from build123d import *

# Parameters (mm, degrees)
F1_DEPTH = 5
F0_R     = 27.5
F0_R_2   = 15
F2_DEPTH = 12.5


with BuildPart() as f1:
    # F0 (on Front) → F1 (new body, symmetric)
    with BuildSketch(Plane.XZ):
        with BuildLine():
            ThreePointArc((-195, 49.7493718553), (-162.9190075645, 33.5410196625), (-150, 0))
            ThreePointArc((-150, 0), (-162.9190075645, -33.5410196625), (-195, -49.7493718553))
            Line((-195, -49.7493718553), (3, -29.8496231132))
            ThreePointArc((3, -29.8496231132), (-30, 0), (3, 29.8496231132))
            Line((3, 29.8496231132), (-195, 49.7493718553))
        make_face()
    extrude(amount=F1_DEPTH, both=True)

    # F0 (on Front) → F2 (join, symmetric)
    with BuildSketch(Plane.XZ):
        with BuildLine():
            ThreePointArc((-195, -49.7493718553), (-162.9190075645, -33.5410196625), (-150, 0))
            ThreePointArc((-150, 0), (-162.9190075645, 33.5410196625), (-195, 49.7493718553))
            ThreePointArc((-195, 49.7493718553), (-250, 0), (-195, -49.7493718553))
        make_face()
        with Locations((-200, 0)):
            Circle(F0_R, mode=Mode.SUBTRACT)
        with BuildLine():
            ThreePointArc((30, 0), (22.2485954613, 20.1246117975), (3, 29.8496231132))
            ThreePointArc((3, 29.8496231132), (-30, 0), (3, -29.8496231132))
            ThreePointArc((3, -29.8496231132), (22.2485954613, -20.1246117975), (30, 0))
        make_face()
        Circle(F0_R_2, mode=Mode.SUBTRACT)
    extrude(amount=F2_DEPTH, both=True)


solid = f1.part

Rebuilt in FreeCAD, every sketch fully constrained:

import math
import FreeCAD as App
import Part
import Sketcher

doc = App.newDocument("Part")
params = doc.addObject("Spreadsheet::Sheet", "Params")
for row, (alias, value) in enumerate([
    ("sketch1_radius", "50 mm"),
    ("sketch1_radius2", "30 mm"),
    ("pad1_length", "10 mm"),
    ("sketch2_diameter", "55 mm"),
    ("sketch2_diameter2", "60 mm"),
    ("sketch2_diameter3", "30 mm"),
    ("sketch2_radius", "50 mm"),
    ("pad2_length", "25 mm"),
], start=1):
    params.set(f"A{row}", alias)
    params.set(f"B{row}", "=" + value)
    params.setAlias(f"B{row}", alias)

body = doc.addObject("PartDesign::Body", "Body")

# Sketch on XZ plane
sketch1 = body.newObject("Sketcher::SketchObject", "Sketch")
sketch1.AttachmentSupport = (doc.getObject("XZ_Plane"), [""])
sketch1.MapMode = "FlatFace"
sketch1.addGeometry(Part.ArcOfCircle(Part.Circle(App.Vector(-200, 0, 0), App.Vector(0, 0, 1), 50), math.radians(0), math.radians(84.26083)), False)
sketch1.addGeometry(Part.ArcOfCircle(Part.Circle(App.Vector(-200, 0, 0), App.Vector(0, 0, 1), 50), math.radians(-84.26083), math.radians(0)), False)
sketch1.addGeometry(Part.LineSegment(App.Vector(-195, -49.749372, 0), App.Vector(3, -29.849623, 0)), False)
sketch1.addGeometry(Part.ArcOfCircle(Part.Circle(App.Vector(0, 0, 0), App.Vector(0, 0, 1), 30), math.radians(84.26083), math.radians(275.73917)), False)
sketch1.addGeometry(Part.LineSegment(App.Vector(3, 29.849623, 0), App.Vector(-195, 49.749372, 0)), False)
sketch1.addConstraint(Sketcher.Constraint("Tangent", 0, 1, 1, 2))
sketch1.addConstraint(Sketcher.Constraint("Tangent", 1, 1, 2, 1))
sketch1.addConstraint(Sketcher.Constraint("Tangent", 2, 2, 3, 2))
sketch1.addConstraint(Sketcher.Constraint("Tangent", 3, 1, 4, 1))
sketch1.addConstraint(Sketcher.Constraint("Tangent", 4, 2, 0, 2))
sketch1.addConstraint(Sketcher.Constraint("Coincident", 3, 3, -1, 1))
sketch1.addConstraint(Sketcher.Constraint("Equal", 0, 1))
sketch1.addConstraint(Sketcher.Constraint("PointOnObject", 0, 3, -1))
sketch1.addConstraint(Sketcher.Constraint("PointOnObject", 0, 1, -1))
sketch1.addConstraint(Sketcher.Constraint("Radius", 0, 50.0))
sketch1.addConstraint(Sketcher.Constraint("Radius", 3, 30.0))
sketch1.addConstraint(Sketcher.Constraint("DistanceX", 0, 3, -1, 1, 200.0))
sketch1.setExpression("Constraints[9]", "Params.sketch1_radius")
sketch1.setExpression("Constraints[10]", "Params.sketch1_radius2")
pad1 = body.newObject("PartDesign::Pad", "Pad")
pad1.Profile = sketch1
pad1.setExpression("Length", "Params.pad1_length")
pad1.Midplane = True

# Sketch on XZ plane
sketch2 = body.newObject("Sketcher::SketchObject", "Sketch001")
sketch2.AttachmentSupport = (doc.getObject("XZ_Plane"), [""])
sketch2.MapMode = "FlatFace"
sketch2.addGeometry(Part.ArcOfCircle(Part.Circle(App.Vector(-200, 0, 0), App.Vector(0, 0, 1), 50), math.radians(-84.26083), math.radians(0)), False)
sketch2.addGeometry(Part.ArcOfCircle(Part.Circle(App.Vector(-200, 0, 0), App.Vector(0, 0, 1), 50), math.radians(0), math.radians(84.26083)), False)
sketch2.addGeometry(Part.ArcOfCircle(Part.Circle(App.Vector(-200, 0, 0), App.Vector(0, 0, 1), 50), math.radians(84.26083), math.radians(275.73917)), False)
sketch2.addGeometry(Part.Circle(App.Vector(-200, 0, 0), App.Vector(0, 0, 1), 27.5), False)
sketch2.addGeometry(Part.Circle(App.Vector(0, 0, 0), App.Vector(0, 0, 1), 30), False)
sketch2.addGeometry(Part.Circle(App.Vector(0, 0, 0), App.Vector(0, 0, 1), 15), False)
sketch2.addConstraint(Sketcher.Constraint("Tangent", 0, 2, 1, 1))
sketch2.addConstraint(Sketcher.Constraint("Tangent", 1, 2, 2, 1))
sketch2.addConstraint(Sketcher.Constraint("Tangent", 2, 2, 0, 1))
sketch2.addConstraint(Sketcher.Constraint("Coincident", 4, 3, -1, 1))
sketch2.addConstraint(Sketcher.Constraint("Coincident", 5, 3, -1, 1))
sketch2.addConstraint(Sketcher.Constraint("Coincident", 3, 3, 0, 3))
sketch2.addConstraint(Sketcher.Constraint("Symmetric", 1, 2, 2, 2, -1))
sketch2.addConstraint(Sketcher.Constraint("PointOnObject", 0, 2, -1))
sketch2.addConstraint(Sketcher.Constraint("Diameter", 3, 55.0))
sketch2.addConstraint(Sketcher.Constraint("Diameter", 4, 60.0))
sketch2.addConstraint(Sketcher.Constraint("Diameter", 5, 30.0))
sketch2.addConstraint(Sketcher.Constraint("Radius", 0, 50.0))
sketch2.addConstraint(Sketcher.Constraint("DistanceX", 0, 3, -1, 1, 200.0))
sketch2.addConstraint(Sketcher.Constraint("DistanceX", 1, 2, -1, 1, 195.0))
sketch2.setExpression("Constraints[8]", "Params.sketch2_diameter")
sketch2.setExpression("Constraints[9]", "Params.sketch2_diameter2")
sketch2.setExpression("Constraints[10]", "Params.sketch2_diameter3")
sketch2.setExpression("Constraints[11]", "Params.sketch2_radius")
pad2 = body.newObject("PartDesign::Pad", "Pad001")
pad2.Profile = sketch2
pad2.setExpression("Length", "Params.pad2_length")
pad2.Midplane = True

doc.recompute()
